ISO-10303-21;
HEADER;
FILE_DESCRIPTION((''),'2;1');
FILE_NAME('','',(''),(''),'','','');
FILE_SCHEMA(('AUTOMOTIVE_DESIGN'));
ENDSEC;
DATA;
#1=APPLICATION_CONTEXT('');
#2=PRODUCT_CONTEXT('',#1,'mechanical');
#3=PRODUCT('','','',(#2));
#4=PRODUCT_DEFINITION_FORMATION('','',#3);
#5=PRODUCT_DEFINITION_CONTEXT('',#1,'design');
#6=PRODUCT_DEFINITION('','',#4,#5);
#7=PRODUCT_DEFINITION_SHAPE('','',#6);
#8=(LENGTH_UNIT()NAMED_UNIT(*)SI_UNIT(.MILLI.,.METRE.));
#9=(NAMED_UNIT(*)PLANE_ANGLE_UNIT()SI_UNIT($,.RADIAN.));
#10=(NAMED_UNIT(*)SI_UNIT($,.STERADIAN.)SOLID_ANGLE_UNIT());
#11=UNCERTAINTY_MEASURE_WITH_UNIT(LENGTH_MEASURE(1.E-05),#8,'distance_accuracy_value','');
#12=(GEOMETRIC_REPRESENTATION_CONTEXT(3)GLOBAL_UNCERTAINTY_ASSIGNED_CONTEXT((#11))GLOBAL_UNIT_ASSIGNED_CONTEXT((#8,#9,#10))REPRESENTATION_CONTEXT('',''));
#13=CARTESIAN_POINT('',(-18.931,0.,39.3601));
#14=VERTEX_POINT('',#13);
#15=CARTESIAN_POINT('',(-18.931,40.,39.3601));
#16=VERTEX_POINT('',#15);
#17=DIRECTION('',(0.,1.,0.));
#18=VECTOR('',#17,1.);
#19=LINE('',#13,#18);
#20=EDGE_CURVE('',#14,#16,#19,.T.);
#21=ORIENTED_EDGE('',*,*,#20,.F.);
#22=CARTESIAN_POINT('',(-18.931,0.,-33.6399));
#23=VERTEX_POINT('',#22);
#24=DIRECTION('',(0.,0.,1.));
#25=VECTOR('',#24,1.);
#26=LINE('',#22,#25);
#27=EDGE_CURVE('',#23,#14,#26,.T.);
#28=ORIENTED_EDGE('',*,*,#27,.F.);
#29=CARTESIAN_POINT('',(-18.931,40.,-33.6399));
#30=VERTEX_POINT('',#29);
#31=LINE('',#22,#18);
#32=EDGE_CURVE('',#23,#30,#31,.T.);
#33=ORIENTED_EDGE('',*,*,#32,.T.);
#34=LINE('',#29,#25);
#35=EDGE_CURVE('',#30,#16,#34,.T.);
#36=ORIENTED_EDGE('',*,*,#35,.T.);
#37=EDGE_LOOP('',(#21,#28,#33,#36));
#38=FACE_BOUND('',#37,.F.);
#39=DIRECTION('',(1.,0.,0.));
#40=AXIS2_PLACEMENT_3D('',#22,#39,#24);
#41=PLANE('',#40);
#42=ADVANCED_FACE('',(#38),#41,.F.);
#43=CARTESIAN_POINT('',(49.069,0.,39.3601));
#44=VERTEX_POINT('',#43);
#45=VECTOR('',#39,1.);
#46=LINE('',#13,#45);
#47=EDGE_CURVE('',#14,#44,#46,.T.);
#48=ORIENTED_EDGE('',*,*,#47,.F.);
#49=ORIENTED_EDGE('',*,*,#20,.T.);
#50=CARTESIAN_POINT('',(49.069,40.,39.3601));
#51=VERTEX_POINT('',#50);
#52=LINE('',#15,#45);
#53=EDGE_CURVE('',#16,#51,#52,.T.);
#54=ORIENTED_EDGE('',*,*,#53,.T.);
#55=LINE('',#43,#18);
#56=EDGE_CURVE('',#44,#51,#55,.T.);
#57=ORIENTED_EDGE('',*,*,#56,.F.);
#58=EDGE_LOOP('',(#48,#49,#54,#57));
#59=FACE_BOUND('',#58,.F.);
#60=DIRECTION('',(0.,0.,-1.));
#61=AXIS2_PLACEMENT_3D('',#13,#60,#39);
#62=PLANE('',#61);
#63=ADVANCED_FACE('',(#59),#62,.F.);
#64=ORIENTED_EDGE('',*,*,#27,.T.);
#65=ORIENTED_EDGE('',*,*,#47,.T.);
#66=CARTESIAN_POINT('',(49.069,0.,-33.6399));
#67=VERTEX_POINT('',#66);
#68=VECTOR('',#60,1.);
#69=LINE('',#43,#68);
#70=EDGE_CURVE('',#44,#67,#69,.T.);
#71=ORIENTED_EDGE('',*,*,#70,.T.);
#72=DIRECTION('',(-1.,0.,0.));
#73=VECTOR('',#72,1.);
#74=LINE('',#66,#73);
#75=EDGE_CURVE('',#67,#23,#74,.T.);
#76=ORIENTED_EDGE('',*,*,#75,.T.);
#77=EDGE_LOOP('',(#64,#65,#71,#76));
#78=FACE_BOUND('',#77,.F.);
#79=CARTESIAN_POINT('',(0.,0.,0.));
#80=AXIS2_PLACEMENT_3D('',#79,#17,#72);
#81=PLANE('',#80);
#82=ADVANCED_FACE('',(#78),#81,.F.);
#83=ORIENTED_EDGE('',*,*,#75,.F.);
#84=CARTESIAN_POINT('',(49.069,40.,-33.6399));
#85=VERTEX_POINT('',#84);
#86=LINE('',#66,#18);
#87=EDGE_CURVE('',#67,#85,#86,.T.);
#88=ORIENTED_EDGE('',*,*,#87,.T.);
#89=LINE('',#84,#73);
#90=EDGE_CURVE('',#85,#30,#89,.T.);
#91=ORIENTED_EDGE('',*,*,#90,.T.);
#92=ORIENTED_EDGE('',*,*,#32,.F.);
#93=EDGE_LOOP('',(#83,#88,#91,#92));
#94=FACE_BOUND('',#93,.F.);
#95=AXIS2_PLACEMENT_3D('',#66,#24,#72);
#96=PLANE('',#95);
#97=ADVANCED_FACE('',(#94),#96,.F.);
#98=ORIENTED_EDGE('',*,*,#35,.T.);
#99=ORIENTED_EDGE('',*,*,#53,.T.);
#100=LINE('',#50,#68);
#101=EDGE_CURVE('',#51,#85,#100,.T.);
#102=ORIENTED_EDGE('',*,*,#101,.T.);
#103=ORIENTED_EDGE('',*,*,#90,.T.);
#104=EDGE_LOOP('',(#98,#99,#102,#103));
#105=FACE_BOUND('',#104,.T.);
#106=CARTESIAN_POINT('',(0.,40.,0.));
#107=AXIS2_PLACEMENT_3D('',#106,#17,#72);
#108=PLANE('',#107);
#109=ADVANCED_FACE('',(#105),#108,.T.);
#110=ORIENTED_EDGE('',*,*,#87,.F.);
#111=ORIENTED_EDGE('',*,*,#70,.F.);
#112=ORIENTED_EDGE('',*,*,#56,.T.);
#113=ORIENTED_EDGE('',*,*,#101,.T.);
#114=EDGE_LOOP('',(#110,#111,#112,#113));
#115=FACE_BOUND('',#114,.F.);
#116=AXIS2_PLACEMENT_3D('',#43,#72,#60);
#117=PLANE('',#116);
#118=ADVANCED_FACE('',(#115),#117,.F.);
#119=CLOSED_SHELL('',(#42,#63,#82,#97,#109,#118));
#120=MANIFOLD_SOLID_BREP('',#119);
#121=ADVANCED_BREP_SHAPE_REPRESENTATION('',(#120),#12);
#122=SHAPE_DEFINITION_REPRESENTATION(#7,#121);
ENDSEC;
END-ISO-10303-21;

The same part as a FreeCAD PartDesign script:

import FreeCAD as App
import Part
import Sketcher

V = App.Vector
Q = App.Units.Quantity


def add_polygon(sketch, points):
    """Adds a closed chain of lines whose ends are joined by coincident constraints."""
    first, n = sketch.GeometryCount, len(points)
    for a, b in zip(points, points[1:] + points[:1]):
        sketch.addGeometry(Part.LineSegment(App.Vector(*a, 0), App.Vector(*b, 0)), False)
    for i in range(n):
        sketch.addConstraint(Sketcher.Constraint("Coincident", first + i, 2, first + (i + 1) % n, 1))

doc = App.newDocument("Part")
body = doc.addObject("PartDesign::Body", "Body")

sketch1 = body.newObject("Sketcher::SketchObject", "Sketch")
sketch1.AttachmentSupport = (doc.getObject("XZ_Plane"), [""])
sketch1.MapMode = "FlatFace"
add_polygon(sketch1, [(-18.931, -33.6399), (-18.931, 39.3601), (49.069, 39.3601), (49.069, -33.6399)])
sketch1.addConstraint([
    Sketcher.Constraint("Vertical", 0),
    Sketcher.Constraint("Horizontal", 1),
    Sketcher.Constraint("Vertical", 2),
    Sketcher.Constraint("Horizontal", 3),
    Sketcher.Constraint("DistanceX", 1, 1, 1, 2, Q("68 mm")),
    Sketcher.Constraint("DistanceY", 0, 1, 0, 2, Q("73 mm")),
    Sketcher.Constraint("DistanceY", -1, 1, 0, 2, Q("39.36 mm")),
    Sketcher.Constraint("DistanceX", 0, 2, -1, 1, Q("18.931 mm")),
])
pad1 = body.newObject("PartDesign::Pad", "Pad")
pad1.Profile = sketch1
pad1.Length = 40
pad1.Reversed = True

doc.recompute()
